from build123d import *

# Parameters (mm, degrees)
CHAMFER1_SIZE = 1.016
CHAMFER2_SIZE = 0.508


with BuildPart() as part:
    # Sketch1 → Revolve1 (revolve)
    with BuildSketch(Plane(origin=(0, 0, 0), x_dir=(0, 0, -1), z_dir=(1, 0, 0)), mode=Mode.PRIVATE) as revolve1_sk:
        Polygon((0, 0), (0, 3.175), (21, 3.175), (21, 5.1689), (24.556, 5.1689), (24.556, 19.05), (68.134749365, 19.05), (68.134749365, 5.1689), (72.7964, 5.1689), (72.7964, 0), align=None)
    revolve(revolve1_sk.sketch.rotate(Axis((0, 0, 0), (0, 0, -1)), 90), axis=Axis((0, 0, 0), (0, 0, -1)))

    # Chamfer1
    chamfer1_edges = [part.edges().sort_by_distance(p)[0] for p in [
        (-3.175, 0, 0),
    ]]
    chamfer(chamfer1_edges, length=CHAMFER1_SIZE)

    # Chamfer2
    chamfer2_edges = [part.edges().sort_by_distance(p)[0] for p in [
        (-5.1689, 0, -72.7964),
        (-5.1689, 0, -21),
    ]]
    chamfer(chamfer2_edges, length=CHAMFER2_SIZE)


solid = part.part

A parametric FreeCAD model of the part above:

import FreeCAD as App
import Part
import Sketcher

V = App.Vector
Q = App.Units.Quantity


def edges_at(feature, points):
    """Names of the edges that pass closest to the given points."""
    edges = feature.Shape.Edges
    near = lambda p: min(range(len(edges)), key=lambda i: edges[i].distToShape(Part.Vertex(*p))[0])
    return sorted({f"Edge{near(p) + 1}" for p in points})


def add_polygon(sketch, points):
    """Adds a closed chain of lines whose ends are joined by coincident constraints."""
    first, n = sketch.GeometryCount, len(points)
    for a, b in zip(points, points[1:] + points[:1]):
        sketch.addGeometry(Part.LineSegment(App.Vector(*a, 0), App.Vector(*b, 0)), False)
    for i in range(n):
        sketch.addConstraint(Sketcher.Constraint("Coincident", first + i, 2, first + (i + 1) % n, 1))

doc = App.newDocument("Part")
body = doc.addObject("PartDesign::Body", "Body")

# Sketch on YZ plane
sketch1 = doc.addObject("Sketcher::SketchObject", "Sketch")
body.addObject(sketch1)
sketch1.AttachmentSupport = (doc.YZ_Plane, [""])
sketch1.MapMode = "FlatFace"
add_polygon(sketch1, [(3.2, 0), (0, 0), (0, -72.8), (5.2, -72.8), (5.2, -68.1), (19.1, -68.1), (19.1, -24.6), (5.2, -24.6), (5.2, -21), (3.2, -21)])  # lines 0-9
sketch1.addConstraint([
    Sketcher.Constraint("Horizontal", 0),
    Sketcher.Constraint("Vertical", 1),
    Sketcher.Constraint("Horizontal", 2),
    Sketcher.Constraint("Vertical", 3),
    Sketcher.Constraint("Horizontal", 4),
    Sketcher.Constraint("Vertical", 5),
    Sketcher.Constraint("Horizontal", 6),
    Sketcher.Constraint("Vertical", 7),
    Sketcher.Constraint("Horizontal", 8),
    Sketcher.Constraint("Vertical", 9),
    Sketcher.Constraint("Coincident", 0, 2, -1, 1),
    Sketcher.Constraint("Vertical", 3, 2, 6, 2),
    Sketcher.Constraint("DistanceY", 7, 1, 7, 2, Q("0.14 in")),
    Sketcher.Constraint("DistanceX", 0, 2, 0, 1, Q("0.125 in")),
    Sketcher.Constraint("DistanceY", 1, 2, 1, 1, Q("2.866 in")),
    Sketcher.Constraint("DistanceX", -1, 1, 4, 2, Q("0.75 in")),
    Sketcher.Constraint("DistanceX", 2, 1, 2, 2, Q("0.2035 in")),
    Sketcher.Constraint("DistanceY", 9, 1, 9, 2, 21.0),
    Sketcher.Constraint("DistanceY", 3, 1, 3, 2, 4.661651),
])
revolution = doc.addObject("PartDesign::Revolution", "Revolution")
body.addObject(revolution)
revolution.Profile = sketch1
revolution.ReferenceAxis = (sketch1, ["V_Axis"])
revolution.Angle = 360
doc.recompute()

chamfer = doc.addObject("PartDesign::Chamfer", "Chamfer")
body.addObject(chamfer)
chamfer.Base = (revolution, edges_at(revolution, [(-3.175, 0, 0)]))
chamfer.Size = Q("0.04 in")
doc.recompute()

chamfer2 = doc.addObject("PartDesign::Chamfer", "Chamfer001")
body.addObject(chamfer2)
chamfer2.Base = (chamfer, edges_at(chamfer, [(-5.169, 0, -72.796), (-5.169, 0, -21)]))
chamfer2.Size = Q("0.02 in")

doc.recompute()
